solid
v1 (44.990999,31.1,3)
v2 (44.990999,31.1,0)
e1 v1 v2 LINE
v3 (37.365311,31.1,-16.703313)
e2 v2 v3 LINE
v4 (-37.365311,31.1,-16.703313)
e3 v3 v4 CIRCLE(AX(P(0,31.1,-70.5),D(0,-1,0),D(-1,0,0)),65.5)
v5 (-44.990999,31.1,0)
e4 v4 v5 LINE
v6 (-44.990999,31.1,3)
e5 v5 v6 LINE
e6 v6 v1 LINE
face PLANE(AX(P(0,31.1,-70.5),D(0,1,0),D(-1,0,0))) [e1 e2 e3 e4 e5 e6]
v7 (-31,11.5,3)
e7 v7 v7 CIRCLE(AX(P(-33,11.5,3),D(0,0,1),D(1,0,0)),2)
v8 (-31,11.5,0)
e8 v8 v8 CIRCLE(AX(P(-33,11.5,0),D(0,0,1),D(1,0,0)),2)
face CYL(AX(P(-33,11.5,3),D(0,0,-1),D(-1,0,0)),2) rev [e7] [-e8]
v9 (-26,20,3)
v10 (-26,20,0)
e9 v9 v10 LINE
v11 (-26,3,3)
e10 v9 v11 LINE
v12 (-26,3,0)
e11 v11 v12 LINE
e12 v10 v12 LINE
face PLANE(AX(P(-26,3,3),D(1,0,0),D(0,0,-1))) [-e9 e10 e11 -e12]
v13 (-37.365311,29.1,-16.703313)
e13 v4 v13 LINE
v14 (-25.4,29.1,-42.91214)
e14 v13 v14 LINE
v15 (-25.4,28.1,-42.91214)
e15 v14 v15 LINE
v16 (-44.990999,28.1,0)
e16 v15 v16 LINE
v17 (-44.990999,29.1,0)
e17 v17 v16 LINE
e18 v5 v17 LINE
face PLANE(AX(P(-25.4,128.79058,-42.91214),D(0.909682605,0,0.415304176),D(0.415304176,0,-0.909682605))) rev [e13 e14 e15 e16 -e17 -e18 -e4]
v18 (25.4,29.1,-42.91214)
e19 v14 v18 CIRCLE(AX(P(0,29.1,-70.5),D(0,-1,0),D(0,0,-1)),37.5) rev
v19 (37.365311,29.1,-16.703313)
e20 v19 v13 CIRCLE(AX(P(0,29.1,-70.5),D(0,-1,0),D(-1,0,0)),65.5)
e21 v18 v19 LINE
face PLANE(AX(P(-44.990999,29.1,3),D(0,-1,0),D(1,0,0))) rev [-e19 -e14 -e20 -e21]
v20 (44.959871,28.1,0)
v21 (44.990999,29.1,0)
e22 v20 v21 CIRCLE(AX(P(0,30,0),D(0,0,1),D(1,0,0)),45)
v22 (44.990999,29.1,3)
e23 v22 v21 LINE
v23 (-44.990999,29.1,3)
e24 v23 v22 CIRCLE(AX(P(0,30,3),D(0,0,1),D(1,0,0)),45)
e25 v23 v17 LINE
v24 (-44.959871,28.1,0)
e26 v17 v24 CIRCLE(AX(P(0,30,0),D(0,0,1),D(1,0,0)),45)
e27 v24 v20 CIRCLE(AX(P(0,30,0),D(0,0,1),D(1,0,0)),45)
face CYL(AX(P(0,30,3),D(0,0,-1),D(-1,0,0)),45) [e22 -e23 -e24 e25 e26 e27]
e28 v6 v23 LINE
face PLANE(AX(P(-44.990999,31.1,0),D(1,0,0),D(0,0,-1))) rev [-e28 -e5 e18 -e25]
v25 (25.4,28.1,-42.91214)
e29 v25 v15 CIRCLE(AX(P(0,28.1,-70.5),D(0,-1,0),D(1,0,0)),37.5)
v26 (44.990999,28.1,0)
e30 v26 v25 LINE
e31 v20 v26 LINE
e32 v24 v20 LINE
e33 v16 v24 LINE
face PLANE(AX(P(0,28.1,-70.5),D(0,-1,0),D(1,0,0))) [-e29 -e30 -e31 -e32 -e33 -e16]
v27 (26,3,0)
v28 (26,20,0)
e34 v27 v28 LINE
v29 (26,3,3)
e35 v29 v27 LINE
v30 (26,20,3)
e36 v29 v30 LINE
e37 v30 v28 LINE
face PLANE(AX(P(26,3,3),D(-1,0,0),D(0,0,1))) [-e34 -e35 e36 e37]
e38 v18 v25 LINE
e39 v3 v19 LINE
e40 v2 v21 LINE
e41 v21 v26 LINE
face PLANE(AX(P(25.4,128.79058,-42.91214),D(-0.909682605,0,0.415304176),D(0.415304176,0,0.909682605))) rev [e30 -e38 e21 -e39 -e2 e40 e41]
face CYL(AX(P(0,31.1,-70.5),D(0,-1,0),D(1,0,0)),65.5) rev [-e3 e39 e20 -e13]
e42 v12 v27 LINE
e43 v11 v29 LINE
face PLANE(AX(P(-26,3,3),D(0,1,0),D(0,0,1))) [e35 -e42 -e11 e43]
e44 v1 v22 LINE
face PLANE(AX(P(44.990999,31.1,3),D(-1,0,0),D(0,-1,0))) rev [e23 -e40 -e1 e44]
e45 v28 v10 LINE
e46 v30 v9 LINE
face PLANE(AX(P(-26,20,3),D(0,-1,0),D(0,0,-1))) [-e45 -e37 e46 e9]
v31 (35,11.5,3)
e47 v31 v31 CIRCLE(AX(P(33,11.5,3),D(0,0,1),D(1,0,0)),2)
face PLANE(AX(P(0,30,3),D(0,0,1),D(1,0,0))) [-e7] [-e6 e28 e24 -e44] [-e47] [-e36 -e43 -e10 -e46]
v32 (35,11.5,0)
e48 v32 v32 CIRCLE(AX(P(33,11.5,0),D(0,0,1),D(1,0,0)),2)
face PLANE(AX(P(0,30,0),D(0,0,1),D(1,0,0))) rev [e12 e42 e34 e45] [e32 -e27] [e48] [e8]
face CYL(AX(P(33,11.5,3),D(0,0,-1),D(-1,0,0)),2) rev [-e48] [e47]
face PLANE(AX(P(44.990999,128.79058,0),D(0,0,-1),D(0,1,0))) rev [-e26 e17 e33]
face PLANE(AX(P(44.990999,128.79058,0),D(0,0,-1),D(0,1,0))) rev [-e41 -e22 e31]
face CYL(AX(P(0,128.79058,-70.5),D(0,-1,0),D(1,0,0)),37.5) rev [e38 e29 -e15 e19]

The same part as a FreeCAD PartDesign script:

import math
import FreeCAD as App
import Part
import Sketcher

V = App.Vector
Q = App.Units.Quantity


def add_polygon(sketch, points):
    """Adds a closed chain of lines whose ends are joined by coincident constraints."""
    first, n = sketch.GeometryCount, len(points)
    for a, b in zip(points, points[1:] + points[:1]):
        sketch.addGeometry(Part.LineSegment(App.Vector(*a, 0), App.Vector(*b, 0)), False)
    for i in range(n):
        sketch.addConstraint(Sketcher.Constraint("Coincident", first + i, 2, first + (i + 1) % n, 1))

doc = App.newDocument("Part")
params = doc.addObject("Spreadsheet::Sheet", "Params")
for row, (alias, value) in enumerate([
    ("sketch1_diameter", "4 mm"),
    ("sketch1_radius", "45 mm"),
    ("sketch1_width", "52 mm"),
    ("sketch1_height", "17 mm"),
    ("pad1_length", "3 mm"),
    ("sketch2_radius", "37.5 mm"),
    ("pad2_length", "1 mm"),
    ("sketch3_radius", "65.5 mm"),
    ("sketch3_height", "3 mm"),
    ("pad3_length", "2 mm"),
], start=1):
    params.set(f"A{row}", alias)
    params.set(f"B{row}", "=" + value)
    params.setAlias(f"B{row}", alias)

body = doc.addObject("PartDesign::Body", "Body")

# Sketch on XY plane
sketch1 = doc.addObject("Sketcher::SketchObject", "Sketch")
body.addObject(sketch1)
sketch1.AttachmentSupport = (doc.XY_Plane, [""])
sketch1.MapMode = "FlatFace"
sketch1.addGeometry(Part.LineSegment(V(45, 29.1, 0), V(-45, 29.1, 0)), False)  # 0
sketch1.addGeometry(Part.ArcOfCircle(Part.Circle(V(0, 30, 0), V(0, 0, 1), 45), math.radians(-179), math.radians(-1)), False)  # 1
sketch1.addGeometry(Part.Circle(V(33, 11.5, 0), V(0, 0, 1), 2), False)  # 2
add_polygon(sketch1, [(-26, 3), (-26, 20), (26, 20), (26, 3)])  # lines 3-6
sketch1.addGeometry(Part.Circle(V(-33, 11.5, 0), V(0, 0, 1), 2), False)  # 7
sketch1.addConstraint([
    Sketcher.Constraint("Coincident", 0, 1, 1, 2),
    Sketcher.Constraint("Coincident", 1, 1, 0, 2),
    Sketcher.Constraint("Horizontal", 0),
    Sketcher.Constraint("Vertical", 3),
    Sketcher.Constraint("Horizontal", 4),
    Sketcher.Constraint("Vertical", 5),
    Sketcher.Constraint("Horizontal", 6),
    Sketcher.Constraint("Equal", 2, 7),
    Sketcher.Constraint("Symmetric", 2, 3, 7, 3, -2),
    Sketcher.Constraint("PointOnObject", 1, 3, -2),
    Sketcher.Constraint("Diameter", 2, Q("4 mm")),
    Sketcher.Constraint("Radius", 1, Q("45 mm")),
    Sketcher.Constraint("DistanceX", 4, 1, 4, 2, Q("52 mm")),
    Sketcher.Constraint("DistanceY", 3, 1, 3, 2, Q("17 mm")),
    Sketcher.Constraint("DistanceY", -1, 1, 1, 3, Q("30 mm")),
    Sketcher.Constraint("DistanceX", -1, 1, 2, 3, Q("33 mm")),
    Sketcher.Constraint("DistanceX", 3, 2, -1, 1, Q("26 mm")),
    Sketcher.Constraint("DistanceY", -1, 1, 3, 2, Q("20 mm")),
    Sketcher.Constraint("DistanceY", -1, 1, 2, 3, Q("11.5 mm")),
    Sketcher.Constraint("DistanceY", -1, 1, 0, 1, Q("29.1 mm")),
])
sketch1.setExpression("Constraints[14]", "Params.sketch1_diameter")
sketch1.setExpression("Constraints[15]", "Params.sketch1_radius")
sketch1.setExpression("Constraints[16]", "Params.sketch1_width")
sketch1.setExpression("Constraints[17]", "Params.sketch1_height")
pad1 = doc.addObject("PartDesign::Pad", "Pad")
body.addObject(pad1)
pad1.Profile = sketch1
pad1.setExpression("Length", "Params.pad1_length")

# Sketch on XZ plane
sketch2 = doc.addObject("Sketcher::SketchObject", "Sketch001")
body.addObject(sketch2)
sketch2.AttachmentSupport = (doc.XZ_Plane, [""])
sketch2.MapMode = "FlatFace"
sketch2.AttachmentOffset = App.Placement(V(0, 0, -28.1), App.Rotation())
sketch2.addGeometry([
    Part.LineSegment(V(-25, -43, 0), V(-45, 0, 0)),
    Part.LineSegment(V(-45, 0, 0), V(45, 0, 0)),
    Part.LineSegment(V(45, 0, 0), V(25, -43, 0)),
    Part.ArcOfCircle(Part.Circle(V(0, -71, 0), V(0, 0, 1), 38), math.radians(47), math.radians(133)),
], False)
sketch2.addConstraint([
    Sketcher.Constraint("Coincident", 0, 2, 1, 1),
    Sketcher.Constraint("Coincident", 1, 2, 2, 1),
    Sketcher.Constraint("Coincident", 2, 2, 3, 1),
    Sketcher.Constraint("Coincident", 3, 2, 0, 1),
    Sketcher.Constraint("Horizontal", 1),
    Sketcher.Constraint("Symmetric", 0, 2, 1, 2, -1, 1),
    Sketcher.Constraint("Symmetric", 2, 2, 3, 2, -2),
    Sketcher.Constraint("Radius", 3, Q("37.5 mm")),
    Sketcher.Constraint("DistanceY", 3, 3, -1, 1, Q("70.5 mm")),
    Sketcher.Constraint("DistanceX", -1, 1, 2, 2, Q("25.4 mm")),
    Sketcher.Constraint("DistanceX", 1, 1, 1, 2, Q("89.981998 mm")),
])
sketch2.setExpression("Constraints[7]", "Params.sketch2_radius")
pad2 = doc.addObject("PartDesign::Pad", "Pad001")
body.addObject(pad2)
pad2.Profile = sketch2
pad2.setExpression("Length", "Params.pad2_length")
pad2.Reversed = True

# Sketch on XZ plane
sketch3 = doc.addObject("Sketcher::SketchObject", "Sketch002")
body.addObject(sketch3)
sketch3.AttachmentSupport = (doc.XZ_Plane, [""])
sketch3.MapMode = "FlatFace"
sketch3.AttachmentOffset = App.Placement(V(0, 0, -29.1), App.Rotation())
sketch3.addGeometry([
    Part.LineSegment(V(-37.4, -16.7, 0), V(-45, 0, 0)),  # 0
    Part.LineSegment(V(-45, 0, 0), V(-45, 3, 0)),  # 1
    Part.LineSegment(V(-45, 3, 0), V(45, 3, 0)),  # 2
    Part.LineSegment(V(45, 3, 0), V(45, 0, 0)),  # 3
    Part.LineSegment(V(45, 0, 0), V(37.4, -16.7, 0)),  # 4
    Part.ArcOfCircle(Part.Circle(V(0, -70.5, 0), V(0, 0, 1), 65.5), math.radians(55), math.radians(125)),  # 5
], False)
sketch3.addConstraint([
    Sketcher.Constraint("Coincident", 0, 2, 1, 1),
    Sketcher.Constraint("Coincident", 1, 2, 2, 1),
    Sketcher.Constraint("Coincident", 2, 2, 3, 1),
    Sketcher.Constraint("Coincident", 3, 2, 4, 1),
    Sketcher.Constraint("Coincident", 4, 2, 5, 1),
    Sketcher.Constraint("Coincident", 5, 2, 0, 1),
    Sketcher.Constraint("Vertical", 1),
    Sketcher.Constraint("Horizontal", 2),
    Sketcher.Constraint("Vertical", 3),
    Sketcher.Constraint("Symmetric", 0, 2, 3, 2, -1, 1),
    Sketcher.Constraint("Symmetric", 4, 2, 5, 2, -2),
    Sketcher.Constraint("PointOnObject", 0, 2, -1),
    Sketcher.Constraint("Radius", 5, Q("65.5 mm")),
    Sketcher.Constraint("DistanceY", 1, 1, 1, 2, Q("3 mm")),
    Sketcher.Constraint("DistanceY", 5, 3, -1, 1, Q("70.5 mm")),
    Sketcher.Constraint("DistanceX", 2, 1, 2, 2, Q("89.981998 mm")),
    Sketcher.Constraint("DistanceX", -1, 1, 4, 2, Q("37.365311 mm")),
])
sketch3.setExpression("Constraints[12]", "Params.sketch3_radius")
sketch3.setExpression("Constraints[13]", "Params.sketch3_height")
pad3 = doc.addObject("PartDesign::Pad", "Pad002")
body.addObject(pad3)
pad3.Profile = sketch3
pad3.setExpression("Length", "Params.pad3_length")
pad3.Reversed = True

doc.recompute()
